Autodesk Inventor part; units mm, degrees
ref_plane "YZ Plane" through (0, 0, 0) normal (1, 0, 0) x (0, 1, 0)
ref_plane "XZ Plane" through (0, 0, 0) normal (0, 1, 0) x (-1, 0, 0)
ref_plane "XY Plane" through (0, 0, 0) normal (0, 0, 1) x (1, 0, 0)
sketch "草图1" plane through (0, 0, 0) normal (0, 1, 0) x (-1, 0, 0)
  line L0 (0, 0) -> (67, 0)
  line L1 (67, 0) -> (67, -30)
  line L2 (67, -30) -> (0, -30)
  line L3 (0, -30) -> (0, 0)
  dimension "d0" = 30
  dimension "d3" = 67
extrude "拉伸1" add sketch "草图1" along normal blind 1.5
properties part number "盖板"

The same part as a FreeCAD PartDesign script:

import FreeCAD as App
import Part
import Sketcher
from FreeCAD import Vector
Q = App.Units.Quantity

doc = App.newDocument("Part")
body = doc.addObject("PartDesign::Body", "Body")

sketch1 = body.newObject("Sketcher::SketchObject", "Sketch")
sketch1.AttachmentSupport = (doc.getObject("XZ_Plane"), [""])
sketch1.MapMode = "FlatFace"
sketch1.addGeometry([
    Part.LineSegment(Vector(-67, 0, 0), Vector(0, 0, 0)),
    Part.LineSegment(Vector(0, 0, 0), Vector(0, -30, 0)),
    Part.LineSegment(Vector(0, -30, 0), Vector(-67, -30, 0)),
    Part.LineSegment(Vector(-67, -30, 0), Vector(-67, 0, 0)),
], False)
sketch1.addConstraint([
    Sketcher.Constraint("Coincident", 0, 2, 1, 1),
    Sketcher.Constraint("Coincident", 1, 2, 2, 1),
    Sketcher.Constraint("Coincident", 2, 2, 3, 1),
    Sketcher.Constraint("Coincident", 3, 2, 0, 1),
    Sketcher.Constraint("Horizontal", 0),
    Sketcher.Constraint("Vertical", 1),
    Sketcher.Constraint("Horizontal", 2),
    Sketcher.Constraint("Vertical", 3),
    Sketcher.Constraint("Coincident", 0, 2, -1, 1),
    Sketcher.Constraint("DistanceX", 0, 1, 0, 2, Q("67 mm")),
    Sketcher.Constraint("DistanceY", 1, 2, 1, 1, Q("30 mm")),
])
pad1 = body.newObject("PartDesign::Pad", "Pad")
pad1.Profile = sketch1
pad1.Length = 1.5
pad1.Reversed = True

doc.recompute()
